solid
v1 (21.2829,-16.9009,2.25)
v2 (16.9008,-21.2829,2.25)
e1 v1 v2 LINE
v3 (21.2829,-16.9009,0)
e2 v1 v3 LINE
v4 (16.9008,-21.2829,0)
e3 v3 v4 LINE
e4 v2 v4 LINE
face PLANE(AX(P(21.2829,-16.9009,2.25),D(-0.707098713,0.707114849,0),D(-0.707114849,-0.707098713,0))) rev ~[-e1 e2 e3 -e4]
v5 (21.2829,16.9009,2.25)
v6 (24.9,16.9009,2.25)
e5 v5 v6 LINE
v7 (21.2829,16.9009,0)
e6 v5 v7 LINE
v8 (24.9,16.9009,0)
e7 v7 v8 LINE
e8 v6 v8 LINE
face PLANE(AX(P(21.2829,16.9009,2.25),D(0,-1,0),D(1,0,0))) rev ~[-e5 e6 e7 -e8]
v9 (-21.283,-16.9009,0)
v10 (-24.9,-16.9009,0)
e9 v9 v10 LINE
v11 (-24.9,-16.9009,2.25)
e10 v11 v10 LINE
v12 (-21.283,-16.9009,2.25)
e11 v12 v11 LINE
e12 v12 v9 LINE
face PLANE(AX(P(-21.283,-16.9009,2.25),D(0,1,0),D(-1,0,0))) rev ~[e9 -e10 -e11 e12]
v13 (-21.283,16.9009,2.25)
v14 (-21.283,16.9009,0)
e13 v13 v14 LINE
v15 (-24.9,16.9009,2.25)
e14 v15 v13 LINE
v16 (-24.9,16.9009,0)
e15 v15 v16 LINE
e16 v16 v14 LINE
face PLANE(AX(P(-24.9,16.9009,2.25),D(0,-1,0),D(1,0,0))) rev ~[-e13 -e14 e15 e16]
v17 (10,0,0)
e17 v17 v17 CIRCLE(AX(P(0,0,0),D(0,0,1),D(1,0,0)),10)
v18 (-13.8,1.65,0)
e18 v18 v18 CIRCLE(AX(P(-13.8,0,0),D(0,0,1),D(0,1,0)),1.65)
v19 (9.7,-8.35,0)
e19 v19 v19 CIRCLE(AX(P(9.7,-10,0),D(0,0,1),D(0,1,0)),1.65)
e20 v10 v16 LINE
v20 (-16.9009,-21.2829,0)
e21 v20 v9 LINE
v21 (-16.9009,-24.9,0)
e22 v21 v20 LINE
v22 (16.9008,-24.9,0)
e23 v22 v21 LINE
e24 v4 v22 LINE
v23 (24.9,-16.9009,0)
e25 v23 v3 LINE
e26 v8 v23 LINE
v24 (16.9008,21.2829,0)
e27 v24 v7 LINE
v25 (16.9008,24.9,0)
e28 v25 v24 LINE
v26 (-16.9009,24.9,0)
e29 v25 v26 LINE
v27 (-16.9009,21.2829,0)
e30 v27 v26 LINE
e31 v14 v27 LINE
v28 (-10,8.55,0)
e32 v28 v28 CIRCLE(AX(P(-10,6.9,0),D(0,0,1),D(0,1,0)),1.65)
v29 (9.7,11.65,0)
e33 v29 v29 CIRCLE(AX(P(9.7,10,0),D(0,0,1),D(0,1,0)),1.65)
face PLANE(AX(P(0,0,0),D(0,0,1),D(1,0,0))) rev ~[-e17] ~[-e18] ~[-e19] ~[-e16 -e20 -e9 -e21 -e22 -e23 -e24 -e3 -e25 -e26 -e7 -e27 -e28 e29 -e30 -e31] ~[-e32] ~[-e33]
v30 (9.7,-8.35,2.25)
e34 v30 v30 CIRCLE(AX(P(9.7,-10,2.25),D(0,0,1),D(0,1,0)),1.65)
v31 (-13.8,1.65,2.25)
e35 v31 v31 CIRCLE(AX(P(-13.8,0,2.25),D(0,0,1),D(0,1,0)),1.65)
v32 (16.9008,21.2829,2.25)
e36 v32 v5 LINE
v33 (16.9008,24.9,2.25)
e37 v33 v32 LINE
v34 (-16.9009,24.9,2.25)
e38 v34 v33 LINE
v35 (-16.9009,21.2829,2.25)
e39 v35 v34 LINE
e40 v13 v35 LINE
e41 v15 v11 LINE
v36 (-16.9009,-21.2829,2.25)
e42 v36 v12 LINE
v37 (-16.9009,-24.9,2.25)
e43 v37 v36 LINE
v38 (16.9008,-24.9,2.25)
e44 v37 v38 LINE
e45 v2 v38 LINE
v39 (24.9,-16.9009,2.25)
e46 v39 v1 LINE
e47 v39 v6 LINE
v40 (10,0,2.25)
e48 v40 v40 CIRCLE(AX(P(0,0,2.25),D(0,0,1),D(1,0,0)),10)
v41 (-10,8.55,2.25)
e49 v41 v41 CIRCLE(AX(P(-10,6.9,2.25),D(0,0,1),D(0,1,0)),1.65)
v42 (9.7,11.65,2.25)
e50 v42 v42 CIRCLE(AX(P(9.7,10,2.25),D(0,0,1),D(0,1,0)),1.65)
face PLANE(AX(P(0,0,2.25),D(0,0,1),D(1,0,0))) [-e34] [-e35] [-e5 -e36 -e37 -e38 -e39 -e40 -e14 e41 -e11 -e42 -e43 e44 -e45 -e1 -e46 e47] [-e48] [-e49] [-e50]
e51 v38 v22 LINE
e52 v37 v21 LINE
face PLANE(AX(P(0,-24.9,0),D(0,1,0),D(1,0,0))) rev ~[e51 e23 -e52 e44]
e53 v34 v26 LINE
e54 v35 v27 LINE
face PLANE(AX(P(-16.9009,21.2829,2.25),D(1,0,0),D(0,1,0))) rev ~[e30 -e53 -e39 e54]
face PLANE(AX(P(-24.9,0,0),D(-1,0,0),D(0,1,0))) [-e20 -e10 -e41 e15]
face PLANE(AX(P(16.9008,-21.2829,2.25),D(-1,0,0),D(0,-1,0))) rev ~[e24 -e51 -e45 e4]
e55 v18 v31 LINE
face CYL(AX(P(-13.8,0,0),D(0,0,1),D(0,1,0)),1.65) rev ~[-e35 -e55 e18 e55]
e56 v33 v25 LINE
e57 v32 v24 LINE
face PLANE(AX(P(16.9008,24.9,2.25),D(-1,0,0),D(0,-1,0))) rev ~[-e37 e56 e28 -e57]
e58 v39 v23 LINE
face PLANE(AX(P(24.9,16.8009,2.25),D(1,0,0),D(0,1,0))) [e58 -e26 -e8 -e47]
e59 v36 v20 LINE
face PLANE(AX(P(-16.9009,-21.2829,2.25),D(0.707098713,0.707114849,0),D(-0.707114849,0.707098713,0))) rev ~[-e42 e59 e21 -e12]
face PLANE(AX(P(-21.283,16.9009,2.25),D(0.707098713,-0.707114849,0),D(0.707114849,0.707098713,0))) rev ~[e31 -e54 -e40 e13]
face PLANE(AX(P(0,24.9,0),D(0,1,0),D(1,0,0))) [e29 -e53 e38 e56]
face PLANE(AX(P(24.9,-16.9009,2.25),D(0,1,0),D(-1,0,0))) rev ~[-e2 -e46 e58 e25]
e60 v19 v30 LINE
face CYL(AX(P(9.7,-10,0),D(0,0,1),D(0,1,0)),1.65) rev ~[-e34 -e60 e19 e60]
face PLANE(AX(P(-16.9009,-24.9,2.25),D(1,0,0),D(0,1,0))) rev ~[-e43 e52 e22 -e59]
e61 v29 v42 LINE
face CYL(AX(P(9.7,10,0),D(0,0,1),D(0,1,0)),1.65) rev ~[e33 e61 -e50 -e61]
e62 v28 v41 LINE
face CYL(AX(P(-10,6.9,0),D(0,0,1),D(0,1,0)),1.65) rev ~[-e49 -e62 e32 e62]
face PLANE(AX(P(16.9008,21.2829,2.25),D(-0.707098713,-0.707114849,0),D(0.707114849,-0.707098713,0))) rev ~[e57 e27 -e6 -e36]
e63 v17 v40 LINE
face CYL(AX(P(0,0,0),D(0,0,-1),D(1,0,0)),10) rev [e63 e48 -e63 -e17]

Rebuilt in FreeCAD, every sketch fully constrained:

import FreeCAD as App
import Part
import Sketcher
from FreeCAD import Vector

doc = App.newDocument("Part")
body = doc.addObject("PartDesign::Body", "Body")

sketch1 = body.newObject("Sketcher::SketchObject", "Sketch")
sketch1.AttachmentSupport = (doc.getObject("XY_Plane"), [""])
sketch1.MapMode = "FlatFace"
sketch1.addGeometry([
    Part.LineSegment(Vector(16.8, 24.9, 0), Vector(-16.8, 24.9, 0)),
    Part.LineSegment(Vector(-16.8, 24.9, 0), Vector(-16.8, 21.2, 0)),
    Part.LineSegment(Vector(-16.8, 21.2, 0), Vector(-21.2, 16.8, 0)),
    Part.LineSegment(Vector(-21.2, 16.8, 0), Vector(-24.9, 16.8, 0)),
    Part.LineSegment(Vector(-24.9, 16.8, 0), Vector(-24.9, -16.8, 0)),
    Part.LineSegment(Vector(-24.9, -16.8, 0), Vector(-21.2, -16.8, 0)),
    Part.LineSegment(Vector(-21.2, -16.8, 0), Vector(-16.8, -21.2, 0)),
    Part.LineSegment(Vector(-16.8, -21.2, 0), Vector(-16.8, -24.9, 0)),
    Part.LineSegment(Vector(-16.8, -24.9, 0), Vector(16.8, -24.9, 0)),
    Part.LineSegment(Vector(16.8, -24.9, 0), Vector(16.8, -21.2, 0)),
    Part.LineSegment(Vector(16.8, -21.2, 0), Vector(21.2, -16.8, 0)),
    Part.LineSegment(Vector(21.2, -16.8, 0), Vector(24.9, -16.8, 0)),
    Part.LineSegment(Vector(24.9, -16.8, 0), Vector(24.9, 16.8, 0)),
    Part.LineSegment(Vector(24.9, 16.8, 0), Vector(21.2, 16.8, 0)),
    Part.LineSegment(Vector(21.2, 16.8, 0), Vector(16.8, 21.2, 0)),
    Part.LineSegment(Vector(16.8, 21.2, 0), Vector(16.8, 24.9, 0)),
    Part.Circle(Vector(0, 0, 0), Vector(0, 0, 1), 10),
], False)
sketch1.addConstraint([
    Sketcher.Constraint("Coincident", 0, 2, 1, 1),
    Sketcher.Constraint("Coincident", 1, 2, 2, 1),
    Sketcher.Constraint("Coincident", 2, 2, 3, 1),
    Sketcher.Constraint("Coincident", 3, 2, 4, 1),
    Sketcher.Constraint("Coincident", 4, 2, 5, 1),
    Sketcher.Constraint("Coincident", 5, 2, 6, 1),
    Sketcher.Constraint("Coincident", 6, 2, 7, 1),
    Sketcher.Constraint("Coincident", 7, 2, 8, 1),
    Sketcher.Constraint("Coincident", 8, 2, 9, 1),
    Sketcher.Constraint("Coincident", 9, 2, 10, 1),
    Sketcher.Constraint("Coincident", 10, 2, 11, 1),
    Sketcher.Constraint("Coincident", 11, 2, 12, 1),
    Sketcher.Constraint("Coincident", 12, 2, 13, 1),
    Sketcher.Constraint("Coincident", 13, 2, 14, 1),
    Sketcher.Constraint("Coincident", 14, 2, 15, 1),
    Sketcher.Constraint("Coincident", 15, 2, 0, 1),
    Sketcher.Constraint("Horizontal", 0),
    Sketcher.Constraint("Vertical", 1),
    Sketcher.Constraint("Horizontal", 3),
    Sketcher.Constraint("Vertical", 4),
    Sketcher.Constraint("Horizontal", 5),
    Sketcher.Constraint("Vertical", 7),
    Sketcher.Constraint("Horizontal", 8),
    Sketcher.Constraint("Vertical", 9),
    Sketcher.Constraint("Horizontal", 11),
    Sketcher.Constraint("Vertical", 12),
    Sketcher.Constraint("Horizontal", 13),
    Sketcher.Constraint("Vertical", 15),
    Sketcher.Constraint("Coincident", 16, 3, -1, 1),
    Sketcher.Constraint("Symmetric", 0, 2, 8, 2, -1, 1),
    Sketcher.Constraint("Symmetric", 2, 2, 10, 2, -1, 1),
    Sketcher.Constraint("Symmetric", 4, 2, 12, 2, -1, 1),
    Sketcher.Constraint("Symmetric", 6, 2, 14, 2, -1, 1),
    Sketcher.Constraint("Symmetric", 6, 2, 9, 2, -2),
    Sketcher.Constraint("Symmetric", 5, 2, 10, 2, -2),
    Sketcher.Constraint("Perpendicular", 2, 6),
    Sketcher.Constraint("Perpendicular", 6, 10),
    Sketcher.Constraint("Perpendicular", 10, 14),
    Sketcher.Constraint("Equal", 13, 1),
    Sketcher.Constraint("Equal", 8, 4),
    Sketcher.Constraint("Diameter", 16, 20.0),
    Sketcher.Constraint("DistanceY", -1, 1, 0, 2, 24.9),
    Sketcher.Constraint("Distance", 2, 6.28),
    Sketcher.Constraint("DistanceX", 0, 2, 0, 1, 33.6018),
])
pad1 = body.newObject("PartDesign::Pad", "Pad")
pad1.Profile = sketch1
pad1.Length = 2.25

sketch2 = body.newObject("Sketcher::SketchObject", "Sketch001")
sketch2.AttachmentSupport = (doc.getObject("XY_Plane"), [""])
sketch2.MapMode = "FlatFace"
sketch2.addGeometry([
    Part.Circle(Vector(-13.8, 0, 0), Vector(0, 0, 1), 1.6),
    Part.Circle(Vector(9.7, -10, 0), Vector(0, 0, 1), 1.6),
    Part.Circle(Vector(-10, 6.9, 0), Vector(0, 0, 1), 1.6),
    Part.Circle(Vector(9.7, 10, 0), Vector(0, 0, 1), 1.6),
], False)
sketch2.addConstraint([
    Sketcher.Constraint("Equal", 0, 1),
    Sketcher.Constraint("Equal", 1, 2),
    Sketcher.Constraint("Equal", 2, 3),
    Sketcher.Constraint("Symmetric", 1, 3, 3, 3, -1),
    Sketcher.Constraint("PointOnObject", 0, 3, -1),
    Sketcher.Constraint("Diameter", 0, 3.3),
    Sketcher.Constraint("DistanceY", 1, 3, -1, 1, 10.0),
    Sketcher.Constraint("DistanceX", 2, 3, -1, 1, 10.0),
    Sketcher.Constraint("DistanceX", 0, 3, -1, 1, 13.8),
    Sketcher.Constraint("DistanceX", -1, 1, 1, 3, 9.7),
    Sketcher.Constraint("DistanceY", -1, 1, 2, 3, 6.9),
])
doc.recompute()
hole = body.newObject("PartDesign::Hole", "Hole")
hole.Profile = sketch2
hole.ThreadType = "None"
hole.Diameter = 3.3
hole.DepthType = "Dimension"
hole.Depth = 12
hole.DrillPoint = "Angled"
hole.DrillPointAngle = 118
hole.Reversed = True

sketch3 = body.newObject("Sketcher::SketchObject", "Sketch002")
sketch3.AttachmentSupport = (doc.getObject("XY_Plane"), [""])
sketch3.MapMode = "FlatFace"
sketch3.AttachmentOffset = App.Placement(Vector(0, 0, 2.25), App.Rotation())
sketch3.addGeometry([
    Part.LineSegment(Vector(16.8, 24.9, 0), Vector(16.8, 21.24, 0)),
    Part.LineSegment(Vector(16.8, 21.24, 0), Vector(21.24, 16.8, 0)),
    Part.LineSegment(Vector(21.24, 16.8, 0), Vector(24.9, 16.8, 0)),
    Part.LineSegment(Vector(24.9, 16.8, 0), Vector(24.9, 16.9, 0)),
    Part.LineSegment(Vector(24.9, 16.9, 0), Vector(21.28, 16.9, 0)),
    Part.LineSegment(Vector(21.28, 16.9, 0), Vector(16.9, 21.28, 0)),
    Part.LineSegment(Vector(16.9, 21.28, 0), Vector(16.9, 24.9, 0)),
    Part.LineSegment(Vector(16.9, 24.9, 0), Vector(16.8, 24.9, 0)),
    Part.LineSegment(Vector(-16.8, 21.24, 0), Vector(-16.8, 24.9, 0)),
    Part.LineSegment(Vector(-16.8, 24.9, 0), Vector(-16.9, 24.9, 0)),
    Part.LineSegment(Vector(-16.9, 24.9, 0), Vector(-16.9, 21.28, 0)),
    Part.LineSegment(Vector(-16.9, 21.28, 0), Vector(-21.28, 16.9, 0)),
    Part.LineSegment(Vector(-21.28, 16.9, 0), Vector(-24.9, 16.9, 0)),
    Part.LineSegment(Vector(-24.9, 16.9, 0), Vector(-24.9, 16.8, 0)),
    Part.LineSegment(Vector(-24.9, 16.8, 0), Vector(-21.24, 16.8, 0)),
    Part.LineSegment(Vector(-21.24, 16.8, 0), Vector(-16.8, 21.24, 0)),
    Part.LineSegment(Vector(-21.24, -16.8, 0), Vector(-24.9, -16.8, 0)),
    Part.LineSegment(Vector(-24.9, -16.8, 0), Vector(-24.9, -16.9, 0)),
    Part.LineSegment(Vector(-24.9, -16.9, 0), Vector(-21.28, -16.9, 0)),
    Part.LineSegment(Vector(-21.28, -16.9, 0), Vector(-16.9, -21.28, 0)),
    Part.LineSegment(Vector(-16.9, -21.28, 0), Vector(-16.9, -24.9, 0)),
    Part.LineSegment(Vector(-16.9, -24.9, 0), Vector(-16.8, -24.9, 0)),
    Part.LineSegment(Vector(-16.8, -24.9, 0), Vector(-16.8, -21.24, 0)),
    Part.LineSegment(Vector(-16.8, -21.24, 0), Vector(-21.24, -16.8, 0)),
    Part.LineSegment(Vector(16.8, -21.24, 0), Vector(16.8, -24.9, 0)),
    Part.LineSegment(Vector(16.8, -24.9, 0), Vector(16.9, -24.9, 0)),
    Part.LineSegment(Vector(16.9, -24.9, 0), Vector(16.9, -21.28, 0)),
    Part.LineSegment(Vector(16.9, -21.28, 0), Vector(21.28, -16.9, 0)),
    Part.LineSegment(Vector(21.28, -16.9, 0), Vector(24.9, -16.9, 0)),
    Part.LineSegment(Vector(24.9, -16.9, 0), Vector(24.9, -16.8, 0)),
    Part.LineSegment(Vector(24.9, -16.8, 0), Vector(21.24, -16.8, 0)),
    Part.LineSegment(Vector(21.24, -16.8, 0), Vector(16.8, -21.24, 0)),
], False)
sketch3.addConstraint([
    Sketcher.Constraint("Coincident", 0, 2, 1, 1),
    Sketcher.Constraint("Coincident", 1, 2, 2, 1),
    Sketcher.Constraint("Coincident", 2, 2, 3, 1),
    Sketcher.Constraint("Coincident", 3, 2, 4, 1),
    Sketcher.Constraint("Coincident", 4, 2, 5, 1),
    Sketcher.Constraint("Coincident", 5, 2, 6, 1),
    Sketcher.Constraint("Coincident", 6, 2, 7, 1),
    Sketcher.Constraint("Coincident", 7, 2, 0, 1),
    Sketcher.Constraint("Coincident", 8, 2, 9, 1),
    Sketcher.Constraint("Coincident", 9, 2, 10, 1),
    Sketcher.Constraint("Coincident", 10, 2, 11, 1),
    Sketcher.Constraint("Coincident", 11, 2, 12, 1),
    Sketcher.Constraint("Coincident", 12, 2, 13, 1),
    Sketcher.Constraint("Coincident", 13, 2, 14, 1),
    Sketcher.Constraint("Coincident", 14, 2, 15, 1),
    Sketcher.Constraint("Coincident", 15, 2, 8, 1),
    Sketcher.Constraint("Coincident", 16, 2, 17, 1),
    Sketcher.Constraint("Coincident", 17, 2, 18, 1),
    Sketcher.Constraint("Coincident", 18, 2, 19, 1),
    Sketcher.Constraint("Coincident", 19, 2, 20, 1),
    Sketcher.Constraint("Coincident", 20, 2, 21, 1),
    Sketcher.Constraint("Coincident", 21, 2, 22, 1),
    Sketcher.Constraint("Coincident", 22, 2, 23, 1),
    Sketcher.Constraint("Coincident", 23, 2, 16, 1),
    Sketcher.Constraint("Coincident", 24, 2, 25, 1),
    Sketcher.Constraint("Coincident", 25, 2, 26, 1),
    Sketcher.Constraint("Coincident", 26, 2, 27, 1),
    Sketcher.Constraint("Coincident", 27, 2, 28, 1),
    Sketcher.Constraint("Coincident", 28, 2, 29, 1),
    Sketcher.Constraint("Coincident", 29, 2, 30, 1),
    Sketcher.Constraint("Coincident", 30, 2, 31, 1),
    Sketcher.Constraint("Coincident", 31, 2, 24, 1),
    Sketcher.Constraint("Vertical", 0),
    Sketcher.Constraint("Horizontal", 2),
    Sketcher.Constraint("Vertical", 3),
    Sketcher.Constraint("Horizontal", 4),
    Sketcher.Constraint("Vertical", 6),
    Sketcher.Constraint("Horizontal", 7),
    Sketcher.Constraint("Vertical", 8),
    Sketcher.Constraint("Horizontal", 9),
    Sketcher.Constraint("Vertical", 10),
    Sketcher.Constraint("Horizontal", 12),
    Sketcher.Constraint("Vertical", 13),
    Sketcher.Constraint("Horizontal", 14),
    Sketcher.Constraint("Horizontal", 16),
    Sketcher.Constraint("Vertical", 17),
    Sketcher.Constraint("Horizontal", 18),
    Sketcher.Constraint("Vertical", 20),
    Sketcher.Constraint("Horizontal", 21),
    Sketcher.Constraint("Vertical", 22),
    Sketcher.Constraint("Vertical", 24),
    Sketcher.Constraint("Horizontal", 25),
    Sketcher.Constraint("Vertical", 26),
    Sketcher.Constraint("Horizontal", 28),
    Sketcher.Constraint("Vertical", 29),
    Sketcher.Constraint("Horizontal", 30),
    Sketcher.Constraint("Symmetric", 2, 2, 16, 2, -1, 1),
    Sketcher.Constraint("Symmetric", 4, 2, 18, 2, -1, 1),
    Sketcher.Constraint("Symmetric", 5, 2, 19, 2, -1, 1),
    Sketcher.Constraint("Symmetric", 7, 2, 21, 2, -1, 1),
    Sketcher.Constraint("Symmetric", 8, 2, 24, 2, -1, 1),
    Sketcher.Constraint("Symmetric", 10, 2, 26, 2, -1, 1),
    Sketcher.Constraint("Symmetric", 11, 2, 27, 2, -1, 1),
    Sketcher.Constraint("Symmetric", 13, 2, 29, 2, -1, 1),
    Sketcher.Constraint("Symmetric", 7, 2, 8, 2, -2),
    Sketcher.Constraint("Symmetric", 5, 2, 10, 2, -2),
    Sketcher.Constraint("Symmetric", 4, 2, 11, 2, -2),
    Sketcher.Constraint("Symmetric", 2, 2, 13, 2, -2),
    Sketcher.Constraint("Parallel", 1, 5),
    Sketcher.Constraint("Perpendicular", 5, 11),
    Sketcher.Constraint("Parallel", 11, 15),
    Sketcher.Constraint("Parallel", 19, 23),
    Sketcher.Constraint("Parallel", 27, 31),
    Sketcher.Constraint("Horizontal", 0, 2, 15, 2),
    Sketcher.Constraint("Horizontal", 22, 2, 31, 2),
    Sketcher.Constraint("Vertical", 14, 2, 23, 2),
    Sketcher.Constraint("Equal", 30, 0),
    Sketcher.Constraint("Equal", 25, 3),
    Sketcher.Constraint("DistanceX", 7, 2, 7, 1, 0.1),
    Sketcher.Constraint("DistanceX", -1, 1, 2, 2, 24.9),
    Sketcher.Constraint("DistanceY", -1, 1, 6, 2, 24.9),
    Sketcher.Constraint("Distance", 1, 6.28),
    Sketcher.Constraint("DistanceX", 4, 2, 4, 1, 3.617),
    Sketcher.Constraint("DistanceX", 2, 1, 2, 2, 3.6586),
])
pad2 = body.newObject("PartDesign::Pad", "Pad001")
pad2.Profile = sketch3
pad2.Length = 2.25
pad2.Reversed = True

doc.recompute()
